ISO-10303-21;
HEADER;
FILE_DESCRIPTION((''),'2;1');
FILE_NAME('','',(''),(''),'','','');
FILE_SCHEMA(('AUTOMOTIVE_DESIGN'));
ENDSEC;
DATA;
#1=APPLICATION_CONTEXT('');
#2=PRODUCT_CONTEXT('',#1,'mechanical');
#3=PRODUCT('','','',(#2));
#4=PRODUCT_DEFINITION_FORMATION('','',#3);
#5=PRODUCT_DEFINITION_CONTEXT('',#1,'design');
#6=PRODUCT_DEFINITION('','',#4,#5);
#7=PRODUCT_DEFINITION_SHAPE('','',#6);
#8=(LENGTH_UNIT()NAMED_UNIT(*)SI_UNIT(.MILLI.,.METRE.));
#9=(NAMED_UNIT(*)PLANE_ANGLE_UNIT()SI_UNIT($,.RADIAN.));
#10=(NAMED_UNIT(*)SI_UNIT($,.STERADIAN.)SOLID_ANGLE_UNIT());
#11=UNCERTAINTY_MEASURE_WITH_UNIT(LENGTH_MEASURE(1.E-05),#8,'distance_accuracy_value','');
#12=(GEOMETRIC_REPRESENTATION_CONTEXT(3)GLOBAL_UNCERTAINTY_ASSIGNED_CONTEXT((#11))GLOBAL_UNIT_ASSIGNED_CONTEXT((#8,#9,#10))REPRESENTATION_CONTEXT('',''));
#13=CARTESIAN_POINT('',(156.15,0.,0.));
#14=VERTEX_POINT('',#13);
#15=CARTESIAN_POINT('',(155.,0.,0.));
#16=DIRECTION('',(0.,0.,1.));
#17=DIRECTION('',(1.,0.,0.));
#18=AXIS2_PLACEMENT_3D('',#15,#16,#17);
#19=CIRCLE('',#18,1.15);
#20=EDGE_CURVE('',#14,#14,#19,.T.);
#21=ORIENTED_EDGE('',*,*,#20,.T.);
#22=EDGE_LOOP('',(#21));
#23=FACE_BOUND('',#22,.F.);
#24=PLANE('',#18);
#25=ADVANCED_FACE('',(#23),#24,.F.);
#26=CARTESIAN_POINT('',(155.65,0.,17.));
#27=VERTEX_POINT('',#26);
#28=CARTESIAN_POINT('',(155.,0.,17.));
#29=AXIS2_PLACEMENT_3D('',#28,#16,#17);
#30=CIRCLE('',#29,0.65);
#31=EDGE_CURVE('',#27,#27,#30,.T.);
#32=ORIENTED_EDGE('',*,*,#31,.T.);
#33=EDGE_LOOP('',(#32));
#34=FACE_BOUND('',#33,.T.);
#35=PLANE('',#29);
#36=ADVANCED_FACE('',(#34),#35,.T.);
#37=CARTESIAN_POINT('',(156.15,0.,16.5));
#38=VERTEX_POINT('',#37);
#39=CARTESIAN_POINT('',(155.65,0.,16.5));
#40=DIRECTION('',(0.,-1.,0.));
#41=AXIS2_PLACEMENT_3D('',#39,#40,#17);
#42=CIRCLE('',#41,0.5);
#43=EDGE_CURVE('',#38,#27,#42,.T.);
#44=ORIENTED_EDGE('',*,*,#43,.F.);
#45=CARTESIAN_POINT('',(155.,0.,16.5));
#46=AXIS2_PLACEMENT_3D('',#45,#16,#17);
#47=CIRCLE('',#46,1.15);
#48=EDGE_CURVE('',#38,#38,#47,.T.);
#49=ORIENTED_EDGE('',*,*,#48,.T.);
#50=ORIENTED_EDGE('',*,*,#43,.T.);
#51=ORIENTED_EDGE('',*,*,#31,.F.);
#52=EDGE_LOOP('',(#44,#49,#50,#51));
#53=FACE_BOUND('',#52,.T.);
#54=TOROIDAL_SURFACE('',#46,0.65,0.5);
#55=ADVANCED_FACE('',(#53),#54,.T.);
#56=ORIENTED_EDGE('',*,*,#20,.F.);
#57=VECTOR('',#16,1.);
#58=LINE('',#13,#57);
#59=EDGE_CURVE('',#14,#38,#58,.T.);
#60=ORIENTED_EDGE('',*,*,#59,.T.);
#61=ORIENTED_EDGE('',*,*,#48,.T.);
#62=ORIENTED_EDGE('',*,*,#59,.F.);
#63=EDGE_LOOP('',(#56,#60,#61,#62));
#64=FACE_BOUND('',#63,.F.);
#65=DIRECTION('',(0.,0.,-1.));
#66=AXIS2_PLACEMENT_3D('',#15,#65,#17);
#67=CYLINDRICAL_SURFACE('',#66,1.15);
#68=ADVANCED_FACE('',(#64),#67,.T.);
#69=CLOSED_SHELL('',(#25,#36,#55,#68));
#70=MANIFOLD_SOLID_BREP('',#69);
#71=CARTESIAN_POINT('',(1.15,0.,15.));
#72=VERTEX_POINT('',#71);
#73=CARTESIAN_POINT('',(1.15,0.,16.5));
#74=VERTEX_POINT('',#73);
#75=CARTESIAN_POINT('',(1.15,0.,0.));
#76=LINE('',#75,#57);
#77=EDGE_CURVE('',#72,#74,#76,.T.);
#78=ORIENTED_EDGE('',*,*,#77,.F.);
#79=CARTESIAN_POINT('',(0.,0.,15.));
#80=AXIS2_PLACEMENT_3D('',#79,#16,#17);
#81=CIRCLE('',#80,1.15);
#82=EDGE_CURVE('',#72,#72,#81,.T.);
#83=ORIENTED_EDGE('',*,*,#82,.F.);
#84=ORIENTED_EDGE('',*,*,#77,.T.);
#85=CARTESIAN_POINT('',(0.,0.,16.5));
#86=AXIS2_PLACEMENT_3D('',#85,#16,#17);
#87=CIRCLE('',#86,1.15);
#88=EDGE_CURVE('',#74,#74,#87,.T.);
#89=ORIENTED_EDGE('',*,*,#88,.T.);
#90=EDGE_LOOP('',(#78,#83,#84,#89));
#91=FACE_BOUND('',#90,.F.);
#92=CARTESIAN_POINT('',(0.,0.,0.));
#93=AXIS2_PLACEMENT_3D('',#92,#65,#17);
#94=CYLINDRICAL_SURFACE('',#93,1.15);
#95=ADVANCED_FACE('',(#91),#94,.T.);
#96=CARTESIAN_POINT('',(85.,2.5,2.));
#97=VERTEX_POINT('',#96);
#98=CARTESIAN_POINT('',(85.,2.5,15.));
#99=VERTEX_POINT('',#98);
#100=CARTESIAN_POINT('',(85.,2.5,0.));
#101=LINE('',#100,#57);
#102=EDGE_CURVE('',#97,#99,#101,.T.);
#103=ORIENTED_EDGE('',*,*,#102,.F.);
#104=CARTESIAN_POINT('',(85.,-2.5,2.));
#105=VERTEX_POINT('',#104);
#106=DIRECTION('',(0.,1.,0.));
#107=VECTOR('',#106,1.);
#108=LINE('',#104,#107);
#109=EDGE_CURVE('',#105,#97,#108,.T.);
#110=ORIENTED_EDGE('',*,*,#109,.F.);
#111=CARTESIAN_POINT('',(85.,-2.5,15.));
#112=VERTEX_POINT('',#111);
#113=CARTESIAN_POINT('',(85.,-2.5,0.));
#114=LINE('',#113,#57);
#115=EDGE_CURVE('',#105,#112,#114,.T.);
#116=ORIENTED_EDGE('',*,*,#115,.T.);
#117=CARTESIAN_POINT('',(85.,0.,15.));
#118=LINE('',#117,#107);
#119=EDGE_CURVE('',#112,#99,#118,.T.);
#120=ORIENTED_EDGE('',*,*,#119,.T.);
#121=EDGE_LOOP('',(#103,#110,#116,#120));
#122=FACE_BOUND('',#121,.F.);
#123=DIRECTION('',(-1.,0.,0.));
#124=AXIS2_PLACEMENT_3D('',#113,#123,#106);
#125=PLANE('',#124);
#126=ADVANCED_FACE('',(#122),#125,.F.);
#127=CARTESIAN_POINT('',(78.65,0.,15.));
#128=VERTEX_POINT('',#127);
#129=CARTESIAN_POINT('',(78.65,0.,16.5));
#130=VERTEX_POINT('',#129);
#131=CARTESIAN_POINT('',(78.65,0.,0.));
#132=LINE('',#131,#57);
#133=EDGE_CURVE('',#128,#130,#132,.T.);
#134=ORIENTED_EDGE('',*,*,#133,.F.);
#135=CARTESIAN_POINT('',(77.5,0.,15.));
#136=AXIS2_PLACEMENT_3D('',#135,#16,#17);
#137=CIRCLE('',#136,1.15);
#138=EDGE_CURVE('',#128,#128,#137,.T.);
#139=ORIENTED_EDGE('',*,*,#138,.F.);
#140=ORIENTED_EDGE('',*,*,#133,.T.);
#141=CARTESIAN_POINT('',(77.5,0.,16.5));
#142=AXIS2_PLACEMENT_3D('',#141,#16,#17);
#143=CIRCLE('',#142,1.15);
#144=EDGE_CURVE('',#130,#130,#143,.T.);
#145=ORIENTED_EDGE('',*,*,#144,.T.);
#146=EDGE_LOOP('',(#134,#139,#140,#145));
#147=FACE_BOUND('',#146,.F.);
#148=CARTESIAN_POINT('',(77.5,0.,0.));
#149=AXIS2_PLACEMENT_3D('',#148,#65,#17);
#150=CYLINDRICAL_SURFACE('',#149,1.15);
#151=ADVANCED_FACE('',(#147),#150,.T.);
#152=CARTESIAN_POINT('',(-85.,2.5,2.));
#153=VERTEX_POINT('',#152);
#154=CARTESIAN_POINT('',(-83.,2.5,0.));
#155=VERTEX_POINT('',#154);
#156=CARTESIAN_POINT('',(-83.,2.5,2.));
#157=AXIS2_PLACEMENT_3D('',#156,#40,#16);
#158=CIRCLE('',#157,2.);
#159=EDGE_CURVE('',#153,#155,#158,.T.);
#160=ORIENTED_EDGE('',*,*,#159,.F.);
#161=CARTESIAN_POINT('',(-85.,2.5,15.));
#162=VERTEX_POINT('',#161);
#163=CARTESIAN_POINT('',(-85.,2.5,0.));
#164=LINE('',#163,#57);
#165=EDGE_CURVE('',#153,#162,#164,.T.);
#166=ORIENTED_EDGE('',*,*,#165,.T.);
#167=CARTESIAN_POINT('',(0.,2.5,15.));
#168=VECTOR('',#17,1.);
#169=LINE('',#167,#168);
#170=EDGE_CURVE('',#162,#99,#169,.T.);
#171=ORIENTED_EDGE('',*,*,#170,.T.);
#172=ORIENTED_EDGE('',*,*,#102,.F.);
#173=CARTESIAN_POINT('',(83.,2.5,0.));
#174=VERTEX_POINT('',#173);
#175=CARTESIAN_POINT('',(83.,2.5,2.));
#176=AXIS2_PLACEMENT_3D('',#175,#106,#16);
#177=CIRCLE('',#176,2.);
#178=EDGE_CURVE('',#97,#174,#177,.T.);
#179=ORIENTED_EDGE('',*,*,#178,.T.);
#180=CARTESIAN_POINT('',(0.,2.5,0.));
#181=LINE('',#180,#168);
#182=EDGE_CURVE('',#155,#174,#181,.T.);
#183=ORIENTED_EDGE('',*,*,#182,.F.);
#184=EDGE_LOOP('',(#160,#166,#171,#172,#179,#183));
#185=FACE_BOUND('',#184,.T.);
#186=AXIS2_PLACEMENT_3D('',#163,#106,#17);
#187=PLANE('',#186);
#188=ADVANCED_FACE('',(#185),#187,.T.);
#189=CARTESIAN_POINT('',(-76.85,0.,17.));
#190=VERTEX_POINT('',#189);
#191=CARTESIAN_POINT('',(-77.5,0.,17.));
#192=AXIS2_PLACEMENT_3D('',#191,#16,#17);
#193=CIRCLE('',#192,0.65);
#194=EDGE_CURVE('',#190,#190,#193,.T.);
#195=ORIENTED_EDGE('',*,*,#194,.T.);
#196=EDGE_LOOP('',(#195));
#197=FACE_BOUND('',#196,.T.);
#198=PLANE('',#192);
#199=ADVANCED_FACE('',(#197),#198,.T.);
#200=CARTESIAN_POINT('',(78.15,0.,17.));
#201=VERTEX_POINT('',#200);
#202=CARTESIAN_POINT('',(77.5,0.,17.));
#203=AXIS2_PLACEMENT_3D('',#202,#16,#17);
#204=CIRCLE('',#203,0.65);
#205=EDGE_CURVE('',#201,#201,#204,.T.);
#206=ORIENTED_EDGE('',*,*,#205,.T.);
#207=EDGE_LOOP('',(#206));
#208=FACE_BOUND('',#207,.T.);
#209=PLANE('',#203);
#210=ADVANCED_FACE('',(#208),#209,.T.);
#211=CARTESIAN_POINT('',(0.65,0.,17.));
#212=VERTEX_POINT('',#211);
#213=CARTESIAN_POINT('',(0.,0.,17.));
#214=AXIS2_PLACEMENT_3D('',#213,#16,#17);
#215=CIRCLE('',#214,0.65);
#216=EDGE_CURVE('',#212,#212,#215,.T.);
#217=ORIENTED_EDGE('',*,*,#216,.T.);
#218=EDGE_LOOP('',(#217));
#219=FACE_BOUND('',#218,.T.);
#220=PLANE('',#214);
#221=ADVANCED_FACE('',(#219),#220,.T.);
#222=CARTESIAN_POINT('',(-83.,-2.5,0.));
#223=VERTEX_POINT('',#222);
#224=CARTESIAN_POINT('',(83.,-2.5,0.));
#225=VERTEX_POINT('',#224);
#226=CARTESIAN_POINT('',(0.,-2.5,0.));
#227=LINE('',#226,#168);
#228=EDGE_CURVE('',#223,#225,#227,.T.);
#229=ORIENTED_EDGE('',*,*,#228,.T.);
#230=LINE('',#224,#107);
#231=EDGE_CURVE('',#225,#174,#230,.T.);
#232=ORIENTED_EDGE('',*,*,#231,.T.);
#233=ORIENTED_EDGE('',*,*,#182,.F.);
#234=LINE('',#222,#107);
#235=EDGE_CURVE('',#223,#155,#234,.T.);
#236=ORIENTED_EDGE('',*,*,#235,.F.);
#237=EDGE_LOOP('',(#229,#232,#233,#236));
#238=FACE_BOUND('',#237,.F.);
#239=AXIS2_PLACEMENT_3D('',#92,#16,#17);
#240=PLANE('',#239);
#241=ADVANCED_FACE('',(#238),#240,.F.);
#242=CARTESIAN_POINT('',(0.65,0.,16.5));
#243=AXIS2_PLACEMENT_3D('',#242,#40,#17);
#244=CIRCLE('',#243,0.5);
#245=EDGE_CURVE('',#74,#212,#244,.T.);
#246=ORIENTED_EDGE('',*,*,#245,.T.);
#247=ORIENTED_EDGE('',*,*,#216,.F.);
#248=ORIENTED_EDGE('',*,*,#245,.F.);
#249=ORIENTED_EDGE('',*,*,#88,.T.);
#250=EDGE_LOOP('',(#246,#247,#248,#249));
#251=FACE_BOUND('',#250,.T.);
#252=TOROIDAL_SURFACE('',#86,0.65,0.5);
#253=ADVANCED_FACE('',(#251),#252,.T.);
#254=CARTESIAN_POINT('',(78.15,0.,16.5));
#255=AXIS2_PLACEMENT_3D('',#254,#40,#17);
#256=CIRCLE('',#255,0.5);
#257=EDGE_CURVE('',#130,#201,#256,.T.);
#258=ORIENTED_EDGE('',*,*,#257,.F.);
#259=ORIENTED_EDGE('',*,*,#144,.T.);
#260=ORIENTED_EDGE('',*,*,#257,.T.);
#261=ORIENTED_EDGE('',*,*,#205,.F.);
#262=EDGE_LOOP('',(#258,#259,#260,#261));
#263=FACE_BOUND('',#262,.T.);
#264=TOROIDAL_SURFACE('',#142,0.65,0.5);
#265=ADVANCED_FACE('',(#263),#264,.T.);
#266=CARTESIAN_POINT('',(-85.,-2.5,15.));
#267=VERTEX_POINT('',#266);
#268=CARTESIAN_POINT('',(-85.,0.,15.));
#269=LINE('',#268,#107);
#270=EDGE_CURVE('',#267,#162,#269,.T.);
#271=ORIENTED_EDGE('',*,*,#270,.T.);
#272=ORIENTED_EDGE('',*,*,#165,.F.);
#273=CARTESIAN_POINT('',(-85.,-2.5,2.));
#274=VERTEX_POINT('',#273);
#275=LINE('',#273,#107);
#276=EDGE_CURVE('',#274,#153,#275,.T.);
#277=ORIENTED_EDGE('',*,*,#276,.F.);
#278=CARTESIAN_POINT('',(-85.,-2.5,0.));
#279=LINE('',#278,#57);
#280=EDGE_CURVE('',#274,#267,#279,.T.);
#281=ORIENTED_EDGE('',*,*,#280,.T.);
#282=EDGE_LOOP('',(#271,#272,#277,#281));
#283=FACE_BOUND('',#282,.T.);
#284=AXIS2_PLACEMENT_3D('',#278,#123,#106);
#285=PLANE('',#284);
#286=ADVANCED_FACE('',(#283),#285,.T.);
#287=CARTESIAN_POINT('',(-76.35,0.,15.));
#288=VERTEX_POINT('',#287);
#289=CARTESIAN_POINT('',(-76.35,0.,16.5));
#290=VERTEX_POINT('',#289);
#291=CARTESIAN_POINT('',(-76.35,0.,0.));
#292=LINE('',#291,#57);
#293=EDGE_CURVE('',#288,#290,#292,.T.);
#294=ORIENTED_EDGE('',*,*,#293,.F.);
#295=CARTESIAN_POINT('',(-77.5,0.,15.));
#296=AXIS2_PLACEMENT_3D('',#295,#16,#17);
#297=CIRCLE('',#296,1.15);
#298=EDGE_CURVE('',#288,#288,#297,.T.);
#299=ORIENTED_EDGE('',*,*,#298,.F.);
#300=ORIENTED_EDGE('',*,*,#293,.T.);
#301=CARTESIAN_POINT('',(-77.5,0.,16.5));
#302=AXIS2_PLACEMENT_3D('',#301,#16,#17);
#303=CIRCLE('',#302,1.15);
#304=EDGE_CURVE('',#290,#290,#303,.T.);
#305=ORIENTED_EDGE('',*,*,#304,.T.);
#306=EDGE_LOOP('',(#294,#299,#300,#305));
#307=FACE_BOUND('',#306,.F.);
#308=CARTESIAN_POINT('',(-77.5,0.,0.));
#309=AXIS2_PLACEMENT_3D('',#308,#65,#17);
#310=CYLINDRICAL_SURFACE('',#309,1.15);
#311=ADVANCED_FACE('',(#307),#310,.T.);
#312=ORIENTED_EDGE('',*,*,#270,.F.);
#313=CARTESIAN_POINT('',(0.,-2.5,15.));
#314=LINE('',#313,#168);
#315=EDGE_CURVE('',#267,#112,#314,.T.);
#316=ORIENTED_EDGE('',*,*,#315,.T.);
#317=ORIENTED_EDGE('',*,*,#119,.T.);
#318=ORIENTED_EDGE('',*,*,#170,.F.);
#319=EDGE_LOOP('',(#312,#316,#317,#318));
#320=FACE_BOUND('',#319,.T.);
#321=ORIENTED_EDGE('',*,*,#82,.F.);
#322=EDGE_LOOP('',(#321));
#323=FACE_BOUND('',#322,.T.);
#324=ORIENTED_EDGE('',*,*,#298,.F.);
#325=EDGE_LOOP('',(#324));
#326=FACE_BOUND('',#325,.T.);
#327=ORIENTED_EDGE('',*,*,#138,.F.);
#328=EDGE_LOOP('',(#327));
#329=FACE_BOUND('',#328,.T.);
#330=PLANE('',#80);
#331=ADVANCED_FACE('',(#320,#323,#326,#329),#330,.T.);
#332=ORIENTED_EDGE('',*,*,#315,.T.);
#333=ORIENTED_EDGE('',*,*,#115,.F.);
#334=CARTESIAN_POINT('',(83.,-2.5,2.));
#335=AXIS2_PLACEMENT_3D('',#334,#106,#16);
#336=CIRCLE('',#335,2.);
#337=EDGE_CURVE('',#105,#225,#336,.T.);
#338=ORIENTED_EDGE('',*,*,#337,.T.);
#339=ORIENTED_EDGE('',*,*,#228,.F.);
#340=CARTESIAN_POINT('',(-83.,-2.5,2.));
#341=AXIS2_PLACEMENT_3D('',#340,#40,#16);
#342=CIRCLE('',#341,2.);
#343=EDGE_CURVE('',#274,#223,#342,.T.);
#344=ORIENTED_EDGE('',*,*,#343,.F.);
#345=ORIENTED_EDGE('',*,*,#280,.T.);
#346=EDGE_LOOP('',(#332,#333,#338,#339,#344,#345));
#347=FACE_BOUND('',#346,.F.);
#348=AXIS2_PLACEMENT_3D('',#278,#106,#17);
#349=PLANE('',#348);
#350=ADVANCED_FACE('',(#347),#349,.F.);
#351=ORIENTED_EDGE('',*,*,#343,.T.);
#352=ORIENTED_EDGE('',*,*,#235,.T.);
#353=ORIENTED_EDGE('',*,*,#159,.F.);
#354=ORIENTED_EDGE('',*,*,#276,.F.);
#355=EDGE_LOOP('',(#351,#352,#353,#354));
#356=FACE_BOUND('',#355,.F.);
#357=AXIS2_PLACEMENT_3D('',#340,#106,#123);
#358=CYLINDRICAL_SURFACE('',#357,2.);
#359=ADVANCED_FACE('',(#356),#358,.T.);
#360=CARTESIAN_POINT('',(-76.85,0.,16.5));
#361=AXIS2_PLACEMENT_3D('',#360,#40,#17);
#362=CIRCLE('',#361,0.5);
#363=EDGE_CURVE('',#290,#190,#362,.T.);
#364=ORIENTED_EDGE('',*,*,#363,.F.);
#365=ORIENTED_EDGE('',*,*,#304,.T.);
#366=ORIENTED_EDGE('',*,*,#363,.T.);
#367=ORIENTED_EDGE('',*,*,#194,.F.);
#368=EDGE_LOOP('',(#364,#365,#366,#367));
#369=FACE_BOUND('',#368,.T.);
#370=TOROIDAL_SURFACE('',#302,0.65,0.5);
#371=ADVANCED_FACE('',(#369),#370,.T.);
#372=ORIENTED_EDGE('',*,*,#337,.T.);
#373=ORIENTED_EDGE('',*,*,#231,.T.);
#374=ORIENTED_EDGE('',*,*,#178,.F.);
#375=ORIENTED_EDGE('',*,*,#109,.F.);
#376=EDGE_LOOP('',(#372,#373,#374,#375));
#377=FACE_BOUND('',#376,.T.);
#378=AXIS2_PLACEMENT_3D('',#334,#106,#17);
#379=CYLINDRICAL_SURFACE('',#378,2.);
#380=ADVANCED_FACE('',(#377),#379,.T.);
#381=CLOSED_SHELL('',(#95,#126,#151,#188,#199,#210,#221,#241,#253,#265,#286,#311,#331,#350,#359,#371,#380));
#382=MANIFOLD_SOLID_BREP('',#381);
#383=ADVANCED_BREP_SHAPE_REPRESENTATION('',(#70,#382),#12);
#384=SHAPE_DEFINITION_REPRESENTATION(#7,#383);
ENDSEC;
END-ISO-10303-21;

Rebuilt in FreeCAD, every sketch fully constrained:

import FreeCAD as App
import Part
import Sketcher
Q = App.Units.Quantity


def edges_at(feature, points):
    """Names of the edges that pass closest to the given points."""
    edges = feature.Shape.Edges
    near = lambda p: min(range(len(edges)), key=lambda i: edges[i].distToShape(Part.Vertex(*p))[0])
    return sorted({f"Edge{near(p) + 1}" for p in points})

doc = App.newDocument("Part")
params = doc.addObject("Spreadsheet::Sheet", "Params")
for row, (alias, value) in enumerate([
    ("sketch1_diameter", "2.3 mm"),
    ("sketch1_width", "170 mm"),
    ("sketch1_height", "5 mm"),
    ("pad1_length", "15 mm"),
    ("sketch2_diameter", "2.3 mm"),
    ("pad2_length", "17 mm"),
    ("fillet_radius", "0.5 mm"),
    ("fillet2_radius", "2 mm"),
], start=1):
    params.set(f"A{row}", alias)
    params.set(f"B{row}", "=" + value)
    params.setAlias(f"B{row}", alias)

body = doc.addObject("PartDesign::Body", "Body")
body.AllowCompound = True

# Sketch on XY plane
sketch1 = doc.addObject("Sketcher::SketchObject", "Sketch")
body.addObject(sketch1)
sketch1.AttachmentSupport = (doc.XY_Plane, [""])
sketch1.MapMode = "FlatFace"
sketch1.addGeometry([
    Part.LineSegment(App.Vector(-85, 2.5, 0), App.Vector(-85, -2.5, 0)),  # 0
    Part.LineSegment(App.Vector(-85, -2.5, 0), App.Vector(85, -2.5, 0)),  # 1
    Part.LineSegment(App.Vector(85, -2.5, 0), App.Vector(85, 2.5, 0)),  # 2
    Part.LineSegment(App.Vector(85, 2.5, 0), App.Vector(-85, 2.5, 0)),  # 3
    Part.Circle(App.Vector(-77.5, 0, 0), App.Vector(0, 0, 1), 1.15),  # 4
    Part.Circle(App.Vector(0, 0, 0), App.Vector(0, 0, 1), 1.15),  # 5
    Part.Circle(App.Vector(77.5, 0, 0), App.Vector(0, 0, 1), 1.15),  # 6
], False)
sketch1.addConstraint([
    Sketcher.Constraint("Coincident", 0, 2, 1, 1),
    Sketcher.Constraint("Coincident", 1, 2, 2, 1),
    Sketcher.Constraint("Coincident", 2, 2, 3, 1),
    Sketcher.Constraint("Coincident", 3, 2, 0, 1),
    Sketcher.Constraint("Vertical", 0),
    Sketcher.Constraint("Horizontal", 1),
    Sketcher.Constraint("Vertical", 2),
    Sketcher.Constraint("Horizontal", 3),
    Sketcher.Constraint("Coincident", 5, 3, -1, 1),
    Sketcher.Constraint("Equal", 4, 5),
    Sketcher.Constraint("Equal", 5, 6),
    Sketcher.Constraint("Symmetric", 4, 3, 6, 3, -1, 1),
    Sketcher.Constraint("Symmetric", 0, 2, 2, 2, -1, 1),
    Sketcher.Constraint("PointOnObject", 4, 3, -1),
    Sketcher.Constraint("Diameter", 4, Q("2.3 mm")),
    Sketcher.Constraint("DistanceX", 1, 1, 1, 2, Q("170 mm")),
    Sketcher.Constraint("DistanceY", 0, 2, 0, 1, Q("5 mm")),
    Sketcher.Constraint("DistanceX", 4, 3, 6, 3, Q("155 mm")),
])
sketch1.setExpression("Constraints[14]", "Params.sketch1_diameter")
sketch1.setExpression("Constraints[15]", "Params.sketch1_width")
sketch1.setExpression("Constraints[16]", "Params.sketch1_height")
pad1 = doc.addObject("PartDesign::Pad", "Pad")
body.addObject(pad1)
pad1.Profile = sketch1
pad1.setExpression("Length", "Params.pad1_length")

# Sketch on XY plane
sketch2 = doc.addObject("Sketcher::SketchObject", "Sketch001")
body.addObject(sketch2)
sketch2.AttachmentSupport = (doc.XY_Plane, [""])
sketch2.MapMode = "FlatFace"
sketch2.addGeometry([
    Part.Circle(App.Vector(-77.5, 0, 0), App.Vector(0, 0, 1), 1.15),
    Part.Circle(App.Vector(0, 0, 0), App.Vector(0, 0, 1), 1.15),
    Part.Circle(App.Vector(77.5, 0, 0), App.Vector(0, 0, 1), 1.15),
    Part.Circle(App.Vector(155, 0, 0), App.Vector(0, 0, 1), 1.15),
], False)
sketch2.addConstraint([
    Sketcher.Constraint("Coincident", 1, 3, -1, 1),
    Sketcher.Constraint("Equal", 0, 1),
    Sketcher.Constraint("Equal", 1, 2),
    Sketcher.Constraint("Equal", 2, 3),
    Sketcher.Constraint("Symmetric", 0, 3, 2, 3, -1, 1),
    Sketcher.Constraint("PointOnObject", 0, 3, -1),
    Sketcher.Constraint("PointOnObject", 3, 3, -1),
    Sketcher.Constraint("Diameter", 0, Q("2.3 mm")),
    Sketcher.Constraint("DistanceX", -1, 1, 3, 3, Q("155 mm")),
    Sketcher.Constraint("DistanceX", 0, 3, 2, 3, Q("155 mm")),
])
sketch2.setExpression("Constraints[7]", "Params.sketch2_diameter")
pad2 = doc.addObject("PartDesign::Pad", "Pad001")
body.addObject(pad2)
pad2.Profile = sketch2
pad2.setExpression("Length", "Params.pad2_length")
doc.recompute()

fillet = doc.addObject("PartDesign::Fillet", "Fillet")
body.addObject(fillet)
fillet.Base = (pad2, edges_at(pad2, [
    (-78.65, 0, 17),
    (-1.15, 0, 17),
    (76.35, 0, 17),
    (153.85, 0, 17),
]))
fillet.setExpression("Radius", "Params.fillet_radius")
doc.recompute()

fillet2 = doc.addObject("PartDesign::Fillet", "Fillet001")
body.addObject(fillet2)
fillet2.Base = (fillet, edges_at(fillet, [(-85, 0, 0), (85, 0, 0)]))
fillet2.setExpression("Radius", "Params.fillet2_radius")

doc.recompute()
